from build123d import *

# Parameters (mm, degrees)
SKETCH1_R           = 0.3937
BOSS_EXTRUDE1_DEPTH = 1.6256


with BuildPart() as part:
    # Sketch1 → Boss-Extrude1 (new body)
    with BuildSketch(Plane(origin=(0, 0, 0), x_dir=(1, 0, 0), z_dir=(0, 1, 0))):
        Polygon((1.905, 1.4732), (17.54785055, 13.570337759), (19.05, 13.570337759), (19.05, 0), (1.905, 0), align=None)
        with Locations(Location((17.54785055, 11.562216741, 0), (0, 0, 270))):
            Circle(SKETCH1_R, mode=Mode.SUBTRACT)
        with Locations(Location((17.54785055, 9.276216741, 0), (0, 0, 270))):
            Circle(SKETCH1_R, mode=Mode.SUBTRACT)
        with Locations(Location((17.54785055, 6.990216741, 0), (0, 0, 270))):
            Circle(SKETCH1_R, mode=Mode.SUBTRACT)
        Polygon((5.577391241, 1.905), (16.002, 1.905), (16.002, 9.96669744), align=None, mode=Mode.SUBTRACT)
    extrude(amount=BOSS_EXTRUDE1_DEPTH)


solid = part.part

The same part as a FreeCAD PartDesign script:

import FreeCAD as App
import Part
import Sketcher
from FreeCAD import Vector
Q = App.Units.Quantity


def add_polygon(sketch, points):
    """Adds a closed chain of lines whose ends are joined by coincident constraints."""
    first, n = sketch.GeometryCount, len(points)
    for a, b in zip(points, points[1:] + points[:1]):
        sketch.addGeometry(Part.LineSegment(App.Vector(*a, 0), App.Vector(*b, 0)), False)
    for i in range(n):
        sketch.addConstraint(Sketcher.Constraint("Coincident", first + i, 2, first + (i + 1) % n, 1))

doc = App.newDocument("Part")
body = doc.addObject("PartDesign::Body", "Body")

sketch1 = body.newObject("Sketcher::SketchObject", "Sketch")
sketch1.AttachmentSupport = (doc.getObject("XZ_Plane"), [""])
sketch1.MapMode = "FlatFace"
add_polygon(sketch1, [(17.55, -13.57), (1.91, -1.47), (1.91, 0), (19.05, 0), (19.05, -13.57)])
add_polygon(sketch1, [(5.58, -1.91), (16, -9.97), (16, -1.91)])
sketch1.addGeometry(Part.Circle(Vector(17.55, -6.99, 0), Vector(0, 0, 1), 0.39), False)
sketch1.addGeometry(Part.Circle(Vector(17.55, -9.28, 0), Vector(0, 0, 1), 0.39), False)
sketch1.addGeometry(Part.Circle(Vector(17.55, -11.56, 0), Vector(0, 0, 1), 0.39), False)
sketch1.addConstraint([
    Sketcher.Constraint("Vertical", 1),
    Sketcher.Constraint("Horizontal", 2),
    Sketcher.Constraint("Vertical", 3),
    Sketcher.Constraint("Horizontal", 4),
    Sketcher.Constraint("Vertical", 6),
    Sketcher.Constraint("Horizontal", 7),
    Sketcher.Constraint("Equal", 8, 9),
    Sketcher.Constraint("Equal", 9, 10),
    Sketcher.Constraint("PointOnObject", 1, 2, -1),
    Sketcher.Constraint("Parallel", 0, 5),
    Sketcher.Constraint("Vertical", 8, 3, 9, 3),
    Sketcher.Constraint("Vertical", 9, 3, 10, 3),
    Sketcher.Constraint("Vertical", 10, 3, 4, 2),
    Sketcher.Constraint("Diameter", 8, Q("0.031 in")),
    Sketcher.Constraint("DistanceX", 2, 1, 2, 2, Q("0.675 in")),
    Sketcher.Constraint("DistanceY", 1, 1, 1, 2, Q("0.058 in")),
    Sketcher.Constraint("DistanceX", -1, 1, 2, 2, Q("0.75 in")),
    Sketcher.Constraint("DistanceX", -1, 1, 5, 2, Q("0.63 in")),
    Sketcher.Constraint("DistanceY", 9, 3, 8, 3, Q("0.09 in")),
    Sketcher.Constraint("DistanceY", 10, 3, 9, 3, Q("0.09 in")),
    Sketcher.Constraint("DistanceY", 6, 2, -1, 1, Q("0.075 in")),
    Sketcher.Constraint("DistanceX", 4, 2, 4, 1, 1.502149),
    Sketcher.Constraint("DistanceX", 7, 2, 7, 1, 10.424609),
    Sketcher.Constraint("Distance", 0, 19.774719),
    Sketcher.Constraint("DistanceY", 3, 2, 10, 3, 2.008121),
])
pad1 = body.newObject("PartDesign::Pad", "Pad")
pad1.Profile = sketch1
pad1.Length = Q("0.064 in")
pad1.Reversed = True

doc.recompute()
